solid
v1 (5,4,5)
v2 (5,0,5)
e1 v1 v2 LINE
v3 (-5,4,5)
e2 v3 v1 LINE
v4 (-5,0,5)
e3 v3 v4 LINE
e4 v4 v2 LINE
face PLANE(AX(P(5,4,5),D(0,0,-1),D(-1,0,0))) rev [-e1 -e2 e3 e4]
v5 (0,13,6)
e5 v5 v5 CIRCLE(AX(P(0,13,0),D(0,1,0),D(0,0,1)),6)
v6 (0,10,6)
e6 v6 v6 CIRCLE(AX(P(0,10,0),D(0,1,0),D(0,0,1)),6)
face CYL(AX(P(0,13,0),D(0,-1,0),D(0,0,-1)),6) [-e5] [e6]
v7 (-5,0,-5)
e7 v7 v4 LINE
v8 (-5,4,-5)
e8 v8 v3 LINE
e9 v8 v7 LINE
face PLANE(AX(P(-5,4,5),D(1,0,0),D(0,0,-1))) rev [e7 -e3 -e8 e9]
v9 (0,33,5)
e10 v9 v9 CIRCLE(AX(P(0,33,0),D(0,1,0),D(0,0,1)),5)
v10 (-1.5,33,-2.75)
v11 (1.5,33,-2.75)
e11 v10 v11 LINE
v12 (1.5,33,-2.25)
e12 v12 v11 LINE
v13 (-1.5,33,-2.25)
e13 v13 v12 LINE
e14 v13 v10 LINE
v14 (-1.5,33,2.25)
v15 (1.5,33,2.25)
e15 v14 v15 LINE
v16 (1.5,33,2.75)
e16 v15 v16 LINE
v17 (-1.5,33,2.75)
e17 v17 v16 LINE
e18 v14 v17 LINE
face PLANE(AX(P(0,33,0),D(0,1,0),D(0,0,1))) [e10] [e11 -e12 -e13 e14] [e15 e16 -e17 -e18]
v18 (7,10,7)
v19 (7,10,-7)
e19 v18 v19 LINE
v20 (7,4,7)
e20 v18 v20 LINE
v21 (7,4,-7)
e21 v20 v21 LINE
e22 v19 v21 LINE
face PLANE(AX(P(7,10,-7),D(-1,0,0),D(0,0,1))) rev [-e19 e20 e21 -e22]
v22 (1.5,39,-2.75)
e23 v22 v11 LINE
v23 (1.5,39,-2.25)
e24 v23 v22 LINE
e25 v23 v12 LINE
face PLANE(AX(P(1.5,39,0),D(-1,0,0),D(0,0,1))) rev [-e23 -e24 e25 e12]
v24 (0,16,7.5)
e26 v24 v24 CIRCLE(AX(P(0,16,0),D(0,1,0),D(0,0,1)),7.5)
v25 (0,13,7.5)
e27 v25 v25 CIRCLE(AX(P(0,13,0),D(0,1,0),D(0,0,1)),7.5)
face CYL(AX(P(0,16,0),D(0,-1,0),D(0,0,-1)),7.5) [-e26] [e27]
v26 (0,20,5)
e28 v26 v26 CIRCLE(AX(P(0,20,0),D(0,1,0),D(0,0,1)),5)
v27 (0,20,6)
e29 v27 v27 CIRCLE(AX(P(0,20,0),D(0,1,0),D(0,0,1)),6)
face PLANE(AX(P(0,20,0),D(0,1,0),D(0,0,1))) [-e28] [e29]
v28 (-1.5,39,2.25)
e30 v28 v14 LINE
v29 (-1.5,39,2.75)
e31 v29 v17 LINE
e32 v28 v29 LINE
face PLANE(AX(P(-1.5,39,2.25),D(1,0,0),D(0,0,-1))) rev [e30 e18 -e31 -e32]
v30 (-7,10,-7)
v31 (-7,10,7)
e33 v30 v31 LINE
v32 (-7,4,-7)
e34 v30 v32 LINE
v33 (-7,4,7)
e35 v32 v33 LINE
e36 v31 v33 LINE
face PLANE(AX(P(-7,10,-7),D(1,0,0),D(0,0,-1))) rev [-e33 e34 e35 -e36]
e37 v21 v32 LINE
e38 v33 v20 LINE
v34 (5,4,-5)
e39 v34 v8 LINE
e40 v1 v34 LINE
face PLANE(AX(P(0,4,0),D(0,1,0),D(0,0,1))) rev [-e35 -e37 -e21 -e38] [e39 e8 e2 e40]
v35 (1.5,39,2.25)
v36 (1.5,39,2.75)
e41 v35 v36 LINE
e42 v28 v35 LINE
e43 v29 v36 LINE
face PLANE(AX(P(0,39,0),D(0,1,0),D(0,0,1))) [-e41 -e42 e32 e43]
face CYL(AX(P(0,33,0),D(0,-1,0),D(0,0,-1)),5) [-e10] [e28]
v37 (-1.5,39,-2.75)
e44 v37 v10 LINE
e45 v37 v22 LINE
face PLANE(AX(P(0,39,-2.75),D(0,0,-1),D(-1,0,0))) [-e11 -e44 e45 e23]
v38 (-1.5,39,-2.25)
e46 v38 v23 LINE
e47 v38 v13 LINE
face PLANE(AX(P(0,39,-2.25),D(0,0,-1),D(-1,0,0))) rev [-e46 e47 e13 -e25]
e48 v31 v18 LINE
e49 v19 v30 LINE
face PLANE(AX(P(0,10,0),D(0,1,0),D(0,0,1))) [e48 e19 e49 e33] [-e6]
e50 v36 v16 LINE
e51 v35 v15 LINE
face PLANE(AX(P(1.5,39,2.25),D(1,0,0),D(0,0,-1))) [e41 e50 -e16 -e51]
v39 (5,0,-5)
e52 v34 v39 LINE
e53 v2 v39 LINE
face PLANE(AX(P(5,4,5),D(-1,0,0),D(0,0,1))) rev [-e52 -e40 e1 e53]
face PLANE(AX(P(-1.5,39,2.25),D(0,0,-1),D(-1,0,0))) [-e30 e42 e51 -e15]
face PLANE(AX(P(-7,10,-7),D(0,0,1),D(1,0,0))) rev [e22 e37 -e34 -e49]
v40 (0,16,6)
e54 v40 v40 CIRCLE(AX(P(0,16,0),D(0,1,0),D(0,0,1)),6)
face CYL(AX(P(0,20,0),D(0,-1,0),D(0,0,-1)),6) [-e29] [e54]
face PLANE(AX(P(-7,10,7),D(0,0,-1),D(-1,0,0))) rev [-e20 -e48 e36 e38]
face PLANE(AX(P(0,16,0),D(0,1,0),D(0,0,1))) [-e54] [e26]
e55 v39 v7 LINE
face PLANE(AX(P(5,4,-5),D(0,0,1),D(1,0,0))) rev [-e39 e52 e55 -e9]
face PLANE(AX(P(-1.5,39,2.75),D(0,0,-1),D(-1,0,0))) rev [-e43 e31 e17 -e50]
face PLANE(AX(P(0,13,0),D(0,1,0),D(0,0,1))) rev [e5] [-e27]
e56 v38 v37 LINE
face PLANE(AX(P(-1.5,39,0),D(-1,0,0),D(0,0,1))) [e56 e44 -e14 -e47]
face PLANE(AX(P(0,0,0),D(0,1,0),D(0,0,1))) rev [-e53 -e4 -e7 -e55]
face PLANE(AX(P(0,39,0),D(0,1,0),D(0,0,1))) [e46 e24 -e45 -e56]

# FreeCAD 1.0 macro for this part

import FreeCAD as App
import Part
import Sketcher

V = App.Vector
Q = App.Units.Quantity

doc = App.newDocument("Part")
body = doc.addObject("PartDesign::Body", "Body")

sketch1 = body.newObject("Sketcher::SketchObject", "Sketch")
sketch1.AttachmentSupport = (doc.getObject("XZ_Plane"), [""])
sketch1.MapMode = "FlatFace"
sketch1.addGeometry([
    Part.LineSegment(V(-5, -5, 0), V(-5, 5, 0)),
    Part.LineSegment(V(-5, 5, 0), V(5, 5, 0)),
    Part.LineSegment(V(5, 5, 0), V(5, -5, 0)),
    Part.LineSegment(V(5, -5, 0), V(-5, -5, 0)),
], False)
sketch1.addConstraint([
    Sketcher.Constraint("Coincident", 0, 2, 1, 1),
    Sketcher.Constraint("Coincident", 1, 2, 2, 1),
    Sketcher.Constraint("Coincident", 2, 2, 3, 1),
    Sketcher.Constraint("Coincident", 3, 2, 0, 1),
    Sketcher.Constraint("Vertical", 0),
    Sketcher.Constraint("Horizontal", 1),
    Sketcher.Constraint("Vertical", 2),
    Sketcher.Constraint("Horizontal", 3),
    Sketcher.Constraint("Symmetric", 0, 2, 2, 2, -1, 1),
    Sketcher.Constraint("Equal", 3, 0),
    Sketcher.Constraint("DistanceX", 1, 1, 1, 2, Q("10 mm")),
])
pad1 = body.newObject("PartDesign::Pad", "Pad")
pad1.Profile = sketch1
pad1.Length = 4
pad1.Reversed = True

sketch2 = body.newObject("Sketcher::SketchObject", "Sketch001")
sketch2.AttachmentSupport = (doc.getObject("XZ_Plane"), [""])
sketch2.MapMode = "FlatFace"
sketch2.AttachmentOffset = App.Placement(V(0, 0, -4), App.Rotation())
sketch2.addGeometry([
    Part.LineSegment(V(-7, -7, 0), V(-7, 7, 0)),
    Part.LineSegment(V(-7, 7, 0), V(7, 7, 0)),
    Part.LineSegment(V(7, 7, 0), V(7, -7, 0)),
    Part.LineSegment(V(7, -7, 0), V(-7, -7, 0)),
], False)
sketch2.addConstraint([
    Sketcher.Constraint("Coincident", 0, 2, 1, 1),
    Sketcher.Constraint("Coincident", 1, 2, 2, 1),
    Sketcher.Constraint("Coincident", 2, 2, 3, 1),
    Sketcher.Constraint("Coincident", 3, 2, 0, 1),
    Sketcher.Constraint("Vertical", 0),
    Sketcher.Constraint("Horizontal", 1),
    Sketcher.Constraint("Vertical", 2),
    Sketcher.Constraint("Horizontal", 3),
    Sketcher.Constraint("Symmetric", 0, 2, 2, 2, -1, 1),
    Sketcher.Constraint("Equal", 3, 0),
    Sketcher.Constraint("DistanceX", 1, 1, 1, 2, Q("14 mm")),
])
pad2 = body.newObject("PartDesign::Pad", "Pad001")
pad2.Profile = sketch2
pad2.Length = 6
pad2.Reversed = True

sketch3 = body.newObject("Sketcher::SketchObject", "Sketch002")
sketch3.AttachmentSupport = (doc.getObject("XZ_Plane"), [""])
sketch3.MapMode = "FlatFace"
sketch3.AttachmentOffset = App.Placement(V(0, 0, -10), App.Rotation())
sketch3.addGeometry(Part.Circle(V(0, 0, 0), V(0, 0, 1), 6), False)
sketch3.addConstraint([
    Sketcher.Constraint("Coincident", 0, 3, -1, 1),
    Sketcher.Constraint("Diameter", 0, Q("12 mm")),
])
pad3 = body.newObject("PartDesign::Pad", "Pad002")
pad3.Profile = sketch3
pad3.Length = 3
pad3.Reversed = True

sketch4 = body.newObject("Sketcher::SketchObject", "Sketch003")
sketch4.AttachmentSupport = (doc.getObject("XZ_Plane"), [""])
sketch4.MapMode = "FlatFace"
sketch4.AttachmentOffset = App.Placement(V(0, 0, -13), App.Rotation())
sketch4.addGeometry(Part.Circle(V(0, 0, 0), V(0, 0, 1), 8), False)
sketch4.addConstraint([
    Sketcher.Constraint("Coincident", 0, 3, -1, 1),
    Sketcher.Constraint("Diameter", 0, Q("15 mm")),
])
pad4 = body.newObject("PartDesign::Pad", "Pad003")
pad4.Profile = sketch4
pad4.Length = 3
pad4.Reversed = True

sketch5 = body.newObject("Sketcher::SketchObject", "Sketch004")
sketch5.AttachmentSupport = (doc.getObject("XZ_Plane"), [""])
sketch5.MapMode = "FlatFace"
sketch5.AttachmentOffset = App.Placement(V(0, 0, -16), App.Rotation())
sketch5.addGeometry(Part.Circle(V(0, 0, 0), V(0, 0, 1), 6), False)
sketch5.addConstraint([
    Sketcher.Constraint("Coincident", 0, 3, -1, 1),
    Sketcher.Constraint("Diameter", 0, Q("12 mm")),
])
pad5 = body.newObject("PartDesign::Pad", "Pad004")
pad5.Profile = sketch5
pad5.Length = 4
pad5.Reversed = True

sketch6 = body.newObject("Sketcher::SketchObject", "Sketch005")
sketch6.AttachmentSupport = (doc.getObject("XZ_Plane"), [""])
sketch6.MapMode = "FlatFace"
sketch6.AttachmentOffset = App.Placement(V(0, 0, -20), App.Rotation())
sketch6.addGeometry(Part.Circle(V(0, 0, 0), V(0, 0, 1), 5), False)
sketch6.addConstraint([
    Sketcher.Constraint("Coincident", 0, 3, -1, 1),
    Sketcher.Constraint("Diameter", 0, Q("10 mm")),
])
pad6 = body.newObject("PartDesign::Pad", "Pad005")
pad6.Profile = sketch6
pad6.Length = 13
pad6.Reversed = True

sketch7 = body.newObject("Sketcher::SketchObject", "Sketch006")
sketch7.AttachmentSupport = (doc.getObject("XZ_Plane"), [""])
sketch7.MapMode = "FlatFace"
sketch7.AttachmentOffset = App.Placement(V(0, 0, -33), App.Rotation())
sketch7.addGeometry([
    Part.LineSegment(V(-1.5, 2.2, 0), V(-1.5, 2.8, 0)),
    Part.LineSegment(V(-1.5, 2.8, 0), V(1.5, 2.8, 0)),
    Part.LineSegment(V(1.5, 2.8, 0), V(1.5, 2.2, 0)),
    Part.LineSegment(V(1.5, 2.2, 0), V(-1.5, 2.2, 0)),
    Part.LineSegment(V(-1.5, -2.8, 0), V(-1.5, -2.2, 0)),
    Part.LineSegment(V(-1.5, -2.2, 0), V(1.5, -2.2, 0)),
    Part.LineSegment(V(1.5, -2.2, 0), V(1.5, -2.8, 0)),
    Part.LineSegment(V(1.5, -2.8, 0), V(-1.5, -2.8, 0)),
], False)
sketch7.addConstraint([
    Sketcher.Constraint("Coincident", 0, 2, 1, 1),
    Sketcher.Constraint("Coincident", 1, 2, 2, 1),
    Sketcher.Constraint("Coincident", 2, 2, 3, 1),
    Sketcher.Constraint("Coincident", 3, 2, 0, 1),
    Sketcher.Constraint("Coincident", 4, 2, 5, 1),
    Sketcher.Constraint("Coincident", 5, 2, 6, 1),
    Sketcher.Constraint("Coincident", 6, 2, 7, 1),
    Sketcher.Constraint("Coincident", 7, 2, 4, 1),
    Sketcher.Constraint("Vertical", 0),
    Sketcher.Constraint("Horizontal", 1),
    Sketcher.Constraint("Vertical", 2),
    Sketcher.Constraint("Horizontal", 3),
    Sketcher.Constraint("Vertical", 4),
    Sketcher.Constraint("Horizontal", 5),
    Sketcher.Constraint("Vertical", 6),
    Sketcher.Constraint("Horizontal", 7),
    Sketcher.Constraint("Symmetric", 2, 2, 4, 2, -1, 1),
    Sketcher.Constraint("Symmetric", 0, 2, 6, 2, -1, 1),
    Sketcher.Constraint("Vertical", 3, 2, 4, 2),
    Sketcher.Constraint("DistanceX", 1, 1, 1, 2, Q("3 mm")),
    Sketcher.Constraint("DistanceY", 0, 1, 0, 2, Q("0.5 mm")),
    Sketcher.Constraint("DistanceY", 4, 2, 0, 2, Q("5 mm")),
])
pad7 = body.newObject("PartDesign::Pad", "Pad006")
pad7.Profile = sketch7
pad7.Length = 6
pad7.Reversed = True

doc.recompute()
